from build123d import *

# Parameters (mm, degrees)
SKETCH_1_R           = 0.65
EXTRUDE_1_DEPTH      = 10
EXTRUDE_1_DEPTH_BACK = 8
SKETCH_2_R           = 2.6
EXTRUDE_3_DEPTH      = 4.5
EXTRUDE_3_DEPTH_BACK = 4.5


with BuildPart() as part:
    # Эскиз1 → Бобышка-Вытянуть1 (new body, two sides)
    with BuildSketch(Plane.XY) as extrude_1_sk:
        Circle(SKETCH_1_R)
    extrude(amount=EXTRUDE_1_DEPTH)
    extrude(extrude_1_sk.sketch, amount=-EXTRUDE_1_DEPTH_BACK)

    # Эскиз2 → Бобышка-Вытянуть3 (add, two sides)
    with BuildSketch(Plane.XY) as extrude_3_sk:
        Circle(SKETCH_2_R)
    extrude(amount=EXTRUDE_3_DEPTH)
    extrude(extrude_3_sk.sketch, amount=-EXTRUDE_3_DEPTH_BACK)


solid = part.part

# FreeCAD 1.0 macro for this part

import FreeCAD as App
import Part
import Sketcher
Q = App.Units.Quantity

doc = App.newDocument("Part")
body = doc.addObject("PartDesign::Body", "Body")

# Sketch on XY plane
sketch1 = body.newObject("Sketcher::SketchObject", "Sketch")
sketch1.AttachmentSupport = (doc.getObject("XY_Plane"), [""])
sketch1.MapMode = "FlatFace"
sketch1.addGeometry(Part.Circle(App.Vector(0, 0, 0), App.Vector(0, 0, 1), 0.65), False)
sketch1.addConstraint([
    Sketcher.Constraint("Coincident", 0, 3, -1, 1),
    Sketcher.Constraint("Diameter", 0, Q("1.3 mm")),
])
pad1 = body.newObject("PartDesign::Pad", "Pad")
pad1.Profile = sketch1
pad1.Type = "TwoLengths"
pad1.Length = 10
pad1.Length2 = 8

# Sketch on XY plane
sketch2 = body.newObject("Sketcher::SketchObject", "Sketch001")
sketch2.AttachmentSupport = (doc.getObject("XY_Plane"), [""])
sketch2.MapMode = "FlatFace"
sketch2.addGeometry(Part.Circle(App.Vector(0, 0, 0), App.Vector(0, 0, 1), 2.6), False)
sketch2.addConstraint([
    Sketcher.Constraint("Coincident", 0, 3, -1, 1),
    Sketcher.Constraint("Diameter", 0, Q("5.2 mm")),
])
pad2 = body.newObject("PartDesign::Pad", "Pad001")
pad2.Profile = sketch2
pad2.Type = "TwoLengths"
pad2.Length = 4.5
pad2.Length2 = 4.5

doc.recompute()
